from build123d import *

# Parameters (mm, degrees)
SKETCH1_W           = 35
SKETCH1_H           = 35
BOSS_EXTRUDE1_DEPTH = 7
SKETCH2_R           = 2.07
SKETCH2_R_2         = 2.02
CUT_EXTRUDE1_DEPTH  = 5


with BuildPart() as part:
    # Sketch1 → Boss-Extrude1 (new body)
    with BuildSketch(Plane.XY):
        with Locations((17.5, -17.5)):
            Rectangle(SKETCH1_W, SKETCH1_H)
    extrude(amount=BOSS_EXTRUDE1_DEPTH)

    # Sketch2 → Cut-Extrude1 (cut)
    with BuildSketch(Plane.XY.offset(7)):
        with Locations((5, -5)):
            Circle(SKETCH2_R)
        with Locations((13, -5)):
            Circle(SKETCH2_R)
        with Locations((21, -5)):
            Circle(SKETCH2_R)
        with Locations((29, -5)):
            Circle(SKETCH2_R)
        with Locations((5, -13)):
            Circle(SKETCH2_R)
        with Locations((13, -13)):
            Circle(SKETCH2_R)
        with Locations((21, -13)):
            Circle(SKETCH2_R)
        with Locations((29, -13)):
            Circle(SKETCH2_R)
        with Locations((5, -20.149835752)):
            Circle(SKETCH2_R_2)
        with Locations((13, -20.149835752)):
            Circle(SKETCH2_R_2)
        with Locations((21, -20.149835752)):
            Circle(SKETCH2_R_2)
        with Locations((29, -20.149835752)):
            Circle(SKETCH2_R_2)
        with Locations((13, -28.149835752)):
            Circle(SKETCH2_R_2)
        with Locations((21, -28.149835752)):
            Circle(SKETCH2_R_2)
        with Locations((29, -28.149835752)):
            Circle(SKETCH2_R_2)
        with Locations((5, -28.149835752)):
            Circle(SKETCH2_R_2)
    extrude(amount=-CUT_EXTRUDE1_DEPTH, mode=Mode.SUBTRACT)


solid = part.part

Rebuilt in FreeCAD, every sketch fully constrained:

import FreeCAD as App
import Part
import Sketcher
Q = App.Units.Quantity

doc = App.newDocument("Part")
body = doc.addObject("PartDesign::Body", "Body")

# Sketch on XY plane
sketch1 = body.newObject("Sketcher::SketchObject", "Sketch")
sketch1.AttachmentSupport = (doc.getObject("XY_Plane"), [""])
sketch1.MapMode = "FlatFace"
sketch1.addGeometry(Part.LineSegment(App.Vector(0, 0, 0), App.Vector(0, -35, 0)), False)
sketch1.addGeometry(Part.LineSegment(App.Vector(0, -35, 0), App.Vector(35, -35, 0)), False)
sketch1.addGeometry(Part.LineSegment(App.Vector(35, -35, 0), App.Vector(35, 0, 0)), False)
sketch1.addGeometry(Part.LineSegment(App.Vector(35, 0, 0), App.Vector(0, 0, 0)), False)
sketch1.addConstraint(Sketcher.Constraint("Coincident", 0, 2, 1, 1))
sketch1.addConstraint(Sketcher.Constraint("Coincident", 1, 2, 2, 1))
sketch1.addConstraint(Sketcher.Constraint("Coincident", 2, 2, 3, 1))
sketch1.addConstraint(Sketcher.Constraint("Coincident", 3, 2, 0, 1))
sketch1.addConstraint(Sketcher.Constraint("Vertical", 0))
sketch1.addConstraint(Sketcher.Constraint("Horizontal", 1))
sketch1.addConstraint(Sketcher.Constraint("Vertical", 2))
sketch1.addConstraint(Sketcher.Constraint("Horizontal", 3))
sketch1.addConstraint(Sketcher.Constraint("Coincident", 3, 2, -1, 1))
sketch1.addConstraint(Sketcher.Constraint("Equal", 3, 0))
sketch1.addConstraint(Sketcher.Constraint("DistanceX", 1, 1, 1, 2, Q("35 mm")))
pad1 = body.newObject("PartDesign::Pad", "Pad")
pad1.Profile = sketch1
pad1.Length = 7

# Sketch on XY plane
sketch2 = body.newObject("Sketcher::SketchObject", "Sketch001")
sketch2.AttachmentSupport = (doc.getObject("XY_Plane"), [""])
sketch2.MapMode = "FlatFace"
sketch2.AttachmentOffset = App.Placement(App.Vector(0, 0, 7), App.Rotation())
sketch2.addGeometry(Part.Circle(App.Vector(5, -5, 0), App.Vector(0, 0, 1), 2.1), False)
sketch2.addGeometry(Part.Circle(App.Vector(13, -5, 0), App.Vector(0, 0, 1), 2.1), False)
sketch2.addGeometry(Part.Circle(App.Vector(21, -5, 0), App.Vector(0, 0, 1), 2.1), False)
sketch2.addGeometry(Part.Circle(App.Vector(29, -5, 0), App.Vector(0, 0, 1), 2.1), False)
sketch2.addGeometry(Part.Circle(App.Vector(5, -13, 0), App.Vector(0, 0, 1), 2.1), False)
sketch2.addGeometry(Part.Circle(App.Vector(13, -13, 0), App.Vector(0, 0, 1), 2.1), False)
sketch2.addGeometry(Part.Circle(App.Vector(21, -13, 0), App.Vector(0, 0, 1), 2.1), False)
sketch2.addGeometry(Part.Circle(App.Vector(29, -13, 0), App.Vector(0, 0, 1), 2.1), False)
sketch2.addGeometry(Part.Circle(App.Vector(5, -20.1, 0), App.Vector(0, 0, 1), 2), False)
sketch2.addGeometry(Part.Circle(App.Vector(13, -20.1, 0), App.Vector(0, 0, 1), 2), False)
sketch2.addGeometry(Part.Circle(App.Vector(21, -20.1, 0), App.Vector(0, 0, 1), 2), False)
sketch2.addGeometry(Part.Circle(App.Vector(29, -20.1, 0), App.Vector(0, 0, 1), 2), False)
sketch2.addGeometry(Part.Circle(App.Vector(13, -28.1, 0), App.Vector(0, 0, 1), 2), False)
sketch2.addGeometry(Part.Circle(App.Vector(21, -28.1, 0), App.Vector(0, 0, 1), 2), False)
sketch2.addGeometry(Part.Circle(App.Vector(29, -28.1, 0), App.Vector(0, 0, 1), 2), False)
sketch2.addGeometry(Part.Circle(App.Vector(5, -28.1, 0), App.Vector(0, 0, 1), 2), False)
sketch2.addConstraint(Sketcher.Constraint("Equal", 0, 1))
sketch2.addConstraint(Sketcher.Constraint("Equal", 1, 2))
sketch2.addConstraint(Sketcher.Constraint("Equal", 2, 3))
sketch2.addConstraint(Sketcher.Constraint("Equal", 3, 4))
sketch2.addConstraint(Sketcher.Constraint("Equal", 4, 5))
sketch2.addConstraint(Sketcher.Constraint("Equal", 5, 6))
sketch2.addConstraint(Sketcher.Constraint("Equal", 6, 7))
sketch2.addConstraint(Sketcher.Constraint("Equal", 8, 9))
sketch2.addConstraint(Sketcher.Constraint("Equal", 9, 10))
sketch2.addConstraint(Sketcher.Constraint("Equal", 10, 11))
sketch2.addConstraint(Sketcher.Constraint("Equal", 11, 12))
sketch2.addConstraint(Sketcher.Constraint("Equal", 12, 13))
sketch2.addConstraint(Sketcher.Constraint("Equal", 13, 14))
sketch2.addConstraint(Sketcher.Constraint("Equal", 14, 15))
sketch2.addConstraint(Sketcher.Constraint("Horizontal", 0, 3, 1, 3))
sketch2.addConstraint(Sketcher.Constraint("Horizontal", 1, 3, 2, 3))
sketch2.addConstraint(Sketcher.Constraint("Horizontal", 2, 3, 3, 3))
sketch2.addConstraint(Sketcher.Constraint("Horizontal", 4, 3, 5, 3))
sketch2.addConstraint(Sketcher.Constraint("Horizontal", 5, 3, 6, 3))
sketch2.addConstraint(Sketcher.Constraint("Horizontal", 6, 3, 7, 3))
sketch2.addConstraint(Sketcher.Constraint("Horizontal", 8, 3, 9, 3))
sketch2.addConstraint(Sketcher.Constraint("Horizontal", 9, 3, 10, 3))
sketch2.addConstraint(Sketcher.Constraint("Horizontal", 10, 3, 11, 3))
sketch2.addConstraint(Sketcher.Constraint("Horizontal", 12, 3, 13, 3))
sketch2.addConstraint(Sketcher.Constraint("Horizontal", 13, 3, 14, 3))
sketch2.addConstraint(Sketcher.Constraint("Horizontal", 14, 3, 15, 3))
sketch2.addConstraint(Sketcher.Constraint("Vertical", 0, 3, 4, 3))
sketch2.addConstraint(Sketcher.Constraint("Vertical", 1, 3, 5, 3))
sketch2.addConstraint(Sketcher.Constraint("Vertical", 2, 3, 6, 3))
sketch2.addConstraint(Sketcher.Constraint("Vertical", 3, 3, 7, 3))
sketch2.addConstraint(Sketcher.Constraint("Vertical", 4, 3, 8, 3))
sketch2.addConstraint(Sketcher.Constraint("Vertical", 5, 3, 9, 3))
sketch2.addConstraint(Sketcher.Constraint("Vertical", 6, 3, 10, 3))
sketch2.addConstraint(Sketcher.Constraint("Vertical", 7, 3, 11, 3))
sketch2.addConstraint(Sketcher.Constraint("Vertical", 9, 3, 12, 3))
sketch2.addConstraint(Sketcher.Constraint("Vertical", 10, 3, 13, 3))
sketch2.addConstraint(Sketcher.Constraint("Vertical", 11, 3, 14, 3))
sketch2.addConstraint(Sketcher.Constraint("Vertical", 8, 3, 15, 3))
sketch2.addConstraint(Sketcher.Constraint("Diameter", 0, Q("4.14 mm")))
sketch2.addConstraint(Sketcher.Constraint("Diameter", 8, Q("4.04 mm")))
sketch2.addConstraint(Sketcher.Constraint("DistanceX", -1, 1, 0, 3, Q("5 mm")))
sketch2.addConstraint(Sketcher.Constraint("DistanceY", 0, 3, -1, 1, Q("5 mm")))
sketch2.addConstraint(Sketcher.Constraint("DistanceX", -1, 1, 1, 3, Q("13 mm")))
sketch2.addConstraint(Sketcher.Constraint("DistanceX", -1, 1, 2, 3, Q("21 mm")))
sketch2.addConstraint(Sketcher.Constraint("DistanceX", -1, 1, 3, 3, Q("29 mm")))
sketch2.addConstraint(Sketcher.Constraint("DistanceY", 4, 3, -1, 1, Q("13 mm")))
sketch2.addConstraint(Sketcher.Constraint("DistanceY", 12, 3, 9, 3, Q("8 mm")))
sketch2.addConstraint(Sketcher.Constraint("DistanceY", 8, 3, -1, 1, Q("20.149836 mm")))
pocket1 = body.newObject("PartDesign::Pocket", "Pocket")
pocket1.Profile = sketch2
pocket1.Length = 5

doc.recompute()
